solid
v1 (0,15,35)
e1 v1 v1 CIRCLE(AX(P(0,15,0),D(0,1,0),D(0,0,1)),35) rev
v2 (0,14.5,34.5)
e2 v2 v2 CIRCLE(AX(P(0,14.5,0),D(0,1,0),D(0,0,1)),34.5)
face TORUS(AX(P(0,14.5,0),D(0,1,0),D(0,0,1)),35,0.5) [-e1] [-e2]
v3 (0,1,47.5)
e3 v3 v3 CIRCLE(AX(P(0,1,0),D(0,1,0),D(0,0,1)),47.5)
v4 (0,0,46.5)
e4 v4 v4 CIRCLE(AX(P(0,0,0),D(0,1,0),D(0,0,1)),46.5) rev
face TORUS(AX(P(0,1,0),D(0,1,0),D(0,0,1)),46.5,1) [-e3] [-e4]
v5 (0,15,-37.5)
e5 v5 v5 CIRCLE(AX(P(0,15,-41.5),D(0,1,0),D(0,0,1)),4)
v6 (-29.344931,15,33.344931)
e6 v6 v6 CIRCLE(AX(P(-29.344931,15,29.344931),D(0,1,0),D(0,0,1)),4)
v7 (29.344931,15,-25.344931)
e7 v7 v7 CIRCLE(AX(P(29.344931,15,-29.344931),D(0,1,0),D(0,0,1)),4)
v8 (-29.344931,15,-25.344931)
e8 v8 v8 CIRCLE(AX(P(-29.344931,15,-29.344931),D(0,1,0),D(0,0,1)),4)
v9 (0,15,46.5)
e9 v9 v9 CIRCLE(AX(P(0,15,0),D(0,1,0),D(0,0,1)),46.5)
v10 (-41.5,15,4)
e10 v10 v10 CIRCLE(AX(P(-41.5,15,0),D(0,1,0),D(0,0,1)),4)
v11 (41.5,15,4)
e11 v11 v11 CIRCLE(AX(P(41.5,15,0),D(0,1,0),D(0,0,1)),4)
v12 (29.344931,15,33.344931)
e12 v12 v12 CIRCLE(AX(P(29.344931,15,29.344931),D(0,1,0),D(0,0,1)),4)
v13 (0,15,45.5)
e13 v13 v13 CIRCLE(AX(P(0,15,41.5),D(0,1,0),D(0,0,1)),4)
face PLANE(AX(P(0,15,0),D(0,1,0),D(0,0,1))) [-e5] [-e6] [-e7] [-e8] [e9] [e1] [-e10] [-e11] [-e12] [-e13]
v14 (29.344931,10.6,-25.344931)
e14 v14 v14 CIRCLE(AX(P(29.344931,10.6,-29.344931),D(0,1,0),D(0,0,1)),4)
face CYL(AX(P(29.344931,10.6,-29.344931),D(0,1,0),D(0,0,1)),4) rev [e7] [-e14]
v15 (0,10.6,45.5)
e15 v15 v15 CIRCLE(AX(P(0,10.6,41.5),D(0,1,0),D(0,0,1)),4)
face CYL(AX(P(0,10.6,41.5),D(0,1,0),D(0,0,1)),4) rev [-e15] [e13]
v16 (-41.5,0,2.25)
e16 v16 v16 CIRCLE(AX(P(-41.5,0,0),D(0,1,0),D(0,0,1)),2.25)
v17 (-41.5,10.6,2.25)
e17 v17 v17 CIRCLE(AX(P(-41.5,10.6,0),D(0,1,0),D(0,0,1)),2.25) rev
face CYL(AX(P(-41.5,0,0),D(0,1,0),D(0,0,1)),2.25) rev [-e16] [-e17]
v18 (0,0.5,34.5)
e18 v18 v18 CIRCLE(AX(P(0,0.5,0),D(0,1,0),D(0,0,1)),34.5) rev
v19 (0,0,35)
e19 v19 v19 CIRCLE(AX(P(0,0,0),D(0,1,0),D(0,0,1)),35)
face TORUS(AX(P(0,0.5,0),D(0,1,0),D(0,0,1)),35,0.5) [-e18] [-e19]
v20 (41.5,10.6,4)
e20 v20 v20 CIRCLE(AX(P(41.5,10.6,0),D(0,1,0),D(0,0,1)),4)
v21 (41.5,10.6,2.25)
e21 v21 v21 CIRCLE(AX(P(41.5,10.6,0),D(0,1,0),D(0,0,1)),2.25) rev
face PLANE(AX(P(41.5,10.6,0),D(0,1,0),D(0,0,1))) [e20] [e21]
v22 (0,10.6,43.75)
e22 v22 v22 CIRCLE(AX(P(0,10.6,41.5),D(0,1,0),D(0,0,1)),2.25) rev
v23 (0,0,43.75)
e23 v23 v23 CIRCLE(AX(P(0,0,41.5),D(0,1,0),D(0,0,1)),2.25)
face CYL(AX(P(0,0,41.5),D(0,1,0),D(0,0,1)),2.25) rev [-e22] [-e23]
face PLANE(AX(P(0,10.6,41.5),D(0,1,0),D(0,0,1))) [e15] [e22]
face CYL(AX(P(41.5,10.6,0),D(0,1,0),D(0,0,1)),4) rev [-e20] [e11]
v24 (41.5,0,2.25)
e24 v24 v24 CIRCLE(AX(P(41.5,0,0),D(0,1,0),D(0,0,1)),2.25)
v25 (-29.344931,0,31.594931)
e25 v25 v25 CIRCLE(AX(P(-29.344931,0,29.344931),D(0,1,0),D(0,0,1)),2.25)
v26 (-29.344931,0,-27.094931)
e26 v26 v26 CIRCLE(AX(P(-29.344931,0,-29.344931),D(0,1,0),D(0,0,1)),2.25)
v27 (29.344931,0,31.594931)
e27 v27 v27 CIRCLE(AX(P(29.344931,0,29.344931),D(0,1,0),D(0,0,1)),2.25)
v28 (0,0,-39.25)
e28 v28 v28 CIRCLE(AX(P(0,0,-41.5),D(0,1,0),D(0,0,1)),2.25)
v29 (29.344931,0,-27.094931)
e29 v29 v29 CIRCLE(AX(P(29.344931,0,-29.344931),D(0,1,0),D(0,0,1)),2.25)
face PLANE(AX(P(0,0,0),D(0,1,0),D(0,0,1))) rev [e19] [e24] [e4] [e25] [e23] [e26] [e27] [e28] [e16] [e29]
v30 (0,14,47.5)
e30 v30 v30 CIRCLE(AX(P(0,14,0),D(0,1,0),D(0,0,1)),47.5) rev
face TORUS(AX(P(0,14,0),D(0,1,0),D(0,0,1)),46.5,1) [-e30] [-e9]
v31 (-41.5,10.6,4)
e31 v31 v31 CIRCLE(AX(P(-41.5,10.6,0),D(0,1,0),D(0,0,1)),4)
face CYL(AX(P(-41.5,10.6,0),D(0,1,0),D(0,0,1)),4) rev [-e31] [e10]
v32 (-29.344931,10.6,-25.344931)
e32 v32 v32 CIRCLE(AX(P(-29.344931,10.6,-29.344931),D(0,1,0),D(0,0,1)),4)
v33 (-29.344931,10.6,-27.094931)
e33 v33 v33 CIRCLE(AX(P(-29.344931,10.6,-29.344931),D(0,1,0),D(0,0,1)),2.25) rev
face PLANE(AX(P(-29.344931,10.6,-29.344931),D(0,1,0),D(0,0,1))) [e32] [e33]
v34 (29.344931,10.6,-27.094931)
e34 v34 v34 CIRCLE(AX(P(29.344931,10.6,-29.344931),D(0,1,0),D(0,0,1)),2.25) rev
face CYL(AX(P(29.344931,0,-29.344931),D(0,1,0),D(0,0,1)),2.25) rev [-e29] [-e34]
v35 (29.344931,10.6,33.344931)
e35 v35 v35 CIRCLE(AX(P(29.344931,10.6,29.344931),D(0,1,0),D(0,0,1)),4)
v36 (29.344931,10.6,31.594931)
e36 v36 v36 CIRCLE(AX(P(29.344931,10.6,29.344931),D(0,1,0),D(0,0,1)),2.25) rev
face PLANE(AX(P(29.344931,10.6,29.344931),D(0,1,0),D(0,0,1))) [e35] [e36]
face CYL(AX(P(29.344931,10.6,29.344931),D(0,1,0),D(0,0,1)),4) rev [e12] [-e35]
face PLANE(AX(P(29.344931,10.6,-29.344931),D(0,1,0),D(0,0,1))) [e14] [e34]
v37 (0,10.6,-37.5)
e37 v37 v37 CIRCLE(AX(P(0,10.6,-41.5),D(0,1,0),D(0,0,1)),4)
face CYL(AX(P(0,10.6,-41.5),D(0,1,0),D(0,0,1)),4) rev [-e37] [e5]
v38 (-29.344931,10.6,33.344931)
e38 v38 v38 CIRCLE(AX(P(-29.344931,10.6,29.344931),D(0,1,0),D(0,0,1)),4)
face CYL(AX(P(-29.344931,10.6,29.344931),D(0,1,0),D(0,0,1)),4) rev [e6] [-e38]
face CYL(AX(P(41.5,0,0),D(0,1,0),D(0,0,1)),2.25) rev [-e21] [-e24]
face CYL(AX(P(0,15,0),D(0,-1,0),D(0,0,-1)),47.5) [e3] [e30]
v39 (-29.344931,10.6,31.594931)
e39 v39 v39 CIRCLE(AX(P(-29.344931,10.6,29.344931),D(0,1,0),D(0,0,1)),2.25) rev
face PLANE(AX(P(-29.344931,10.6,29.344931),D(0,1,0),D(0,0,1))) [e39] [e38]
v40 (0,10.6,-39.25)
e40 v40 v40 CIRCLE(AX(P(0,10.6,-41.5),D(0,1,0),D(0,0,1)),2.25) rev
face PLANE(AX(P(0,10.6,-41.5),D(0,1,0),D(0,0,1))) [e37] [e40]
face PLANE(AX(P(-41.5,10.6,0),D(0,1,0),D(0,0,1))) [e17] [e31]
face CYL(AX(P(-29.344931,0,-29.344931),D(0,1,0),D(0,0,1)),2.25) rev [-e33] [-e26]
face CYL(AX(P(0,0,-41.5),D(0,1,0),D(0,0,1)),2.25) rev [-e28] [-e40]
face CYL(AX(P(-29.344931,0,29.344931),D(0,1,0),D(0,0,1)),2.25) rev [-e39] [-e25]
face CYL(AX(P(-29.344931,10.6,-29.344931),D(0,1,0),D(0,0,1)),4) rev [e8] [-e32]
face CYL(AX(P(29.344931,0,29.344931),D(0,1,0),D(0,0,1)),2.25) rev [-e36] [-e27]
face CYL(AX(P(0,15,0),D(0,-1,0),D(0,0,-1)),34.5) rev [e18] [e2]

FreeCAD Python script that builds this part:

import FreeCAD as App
import Part
import Sketcher

V = App.Vector
Q = App.Units.Quantity


def edges_at(feature, points):
    """Names of the edges that pass closest to the given points."""
    edges = feature.Shape.Edges
    near = lambda p: min(range(len(edges)), key=lambda i: edges[i].distToShape(Part.Vertex(*p))[0])
    return sorted({f"Edge{near(p) + 1}" for p in points})

doc = App.newDocument("Part")
body = doc.addObject("PartDesign::Body", "Body")

# Sketch on XZ plane
sketch1 = body.newObject("Sketcher::SketchObject", "Sketch")
sketch1.AttachmentSupport = (doc.getObject("XZ_Plane"), [""])
sketch1.MapMode = "FlatFace"
sketch1.addGeometry([
    Part.Circle(V(0, 0, 0), V(0, 0, 1), 48),
    Part.Circle(V(0, 0, 0), V(0, 0, 1), 34),
], False)
sketch1.addConstraint([
    Sketcher.Constraint("Coincident", 0, 3, -1, 1),
    Sketcher.Constraint("Coincident", 1, 3, -1, 1),
    Sketcher.Constraint("Diameter", 0, Q("95 mm")),
    Sketcher.Constraint("Diameter", 1, Q("69 mm")),
])
pad1 = body.newObject("PartDesign::Pad", "Pad")
pad1.Profile = sketch1
pad1.Length = 15
pad1.Reversed = True

# Sketch on XZ plane
sketch2 = body.newObject("Sketcher::SketchObject", "Sketch001")
sketch2.AttachmentSupport = (doc.getObject("XZ_Plane"), [""])
sketch2.MapMode = "FlatFace"
sketch2.AttachmentOffset = App.Placement(V(0, 0, -15), App.Rotation())
sketch2.addGeometry([
    Part.Circle(V(0, -41.5, 0), V(0, 0, 1), 2.2),  # 0
    Part.Circle(V(29.3, -29.3, 0), V(0, 0, 1), 2.2),  # 1
    Part.Circle(V(41.5, 0, 0), V(0, 0, 1), 2.2),  # 2
    Part.Circle(V(29.3, 29.3, 0), V(0, 0, 1), 2.2),  # 3
    Part.Circle(V(0, 41.5, 0), V(0, 0, 1), 2.2),  # 4
    Part.Circle(V(-29.3, 29.3, 0), V(0, 0, 1), 2.2),  # 5
    Part.Circle(V(-41.5, 0, 0), V(0, 0, 1), 2.2),  # 6
    Part.Circle(V(-29.3, -29.3, 0), V(0, 0, 1), 2.2),  # 7
], False)
sketch2.addConstraint([
    Sketcher.Constraint("Equal", 0, 1),
    Sketcher.Constraint("Equal", 1, 2),
    Sketcher.Constraint("Equal", 2, 3),
    Sketcher.Constraint("Equal", 3, 4),
    Sketcher.Constraint("Equal", 4, 5),
    Sketcher.Constraint("Equal", 5, 6),
    Sketcher.Constraint("Equal", 6, 7),
    Sketcher.Constraint("Symmetric", 0, 3, 4, 3, -1, 1),
    Sketcher.Constraint("Symmetric", 1, 3, 5, 3, -1, 1),
    Sketcher.Constraint("Symmetric", 2, 3, 6, 3, -1, 1),
    Sketcher.Constraint("Symmetric", 3, 3, 7, 3, -1, 1),
    Sketcher.Constraint("Symmetric", 3, 3, 5, 3, -2),
    Sketcher.Constraint("PointOnObject", 0, 3, -2),
    Sketcher.Constraint("PointOnObject", 2, 3, -1),
    Sketcher.Constraint("Diameter", 0, Q("4.5 mm")),
    Sketcher.Constraint("DistanceY", 0, 3, 4, 3, Q("83 mm")),
    Sketcher.Constraint("DistanceX", -1, 1, 2, 3, Q("41.5 mm")),
    Sketcher.Constraint("DistanceX", -1, 1, 1, 3, Q("29.344931 mm")),
    Sketcher.Constraint("DistanceY", 1, 3, -1, 1, Q("29.344931 mm")),
])
pocket1 = body.newObject("PartDesign::Pocket", "Pocket")
pocket1.Profile = sketch2
pocket1.Type = "ThroughAll"
pocket1.Reversed = True

# Sketch on XZ plane
sketch3 = body.newObject("Sketcher::SketchObject", "Sketch002")
sketch3.AttachmentSupport = (doc.getObject("XZ_Plane"), [""])
sketch3.MapMode = "FlatFace"
sketch3.AttachmentOffset = App.Placement(V(0, 0, -15), App.Rotation())
sketch3.addGeometry([
    Part.Circle(V(0, -41.5, 0), V(0, 0, 1), 4),  # 0
    Part.Circle(V(29.3, -29.3, 0), V(0, 0, 1), 4),  # 1
    Part.Circle(V(41.5, 0, 0), V(0, 0, 1), 4),  # 2
    Part.Circle(V(29.3, 29.3, 0), V(0, 0, 1), 4),  # 3
    Part.Circle(V(0, 41.5, 0), V(0, 0, 1), 4),  # 4
    Part.Circle(V(-29.3, 29.3, 0), V(0, 0, 1), 4),  # 5
    Part.Circle(V(-41.5, 0, 0), V(0, 0, 1), 4),  # 6
    Part.Circle(V(-29.3, -29.3, 0), V(0, 0, 1), 4),  # 7
], False)
sketch3.addConstraint([
    Sketcher.Constraint("Equal", 0, 1),
    Sketcher.Constraint("Equal", 1, 2),
    Sketcher.Constraint("Equal", 2, 3),
    Sketcher.Constraint("Equal", 3, 4),
    Sketcher.Constraint("Equal", 4, 5),
    Sketcher.Constraint("Equal", 5, 6),
    Sketcher.Constraint("Equal", 6, 7),
    Sketcher.Constraint("Symmetric", 0, 3, 4, 3, -1, 1),
    Sketcher.Constraint("Symmetric", 1, 3, 5, 3, -1, 1),
    Sketcher.Constraint("Symmetric", 2, 3, 6, 3, -1, 1),
    Sketcher.Constraint("Symmetric", 3, 3, 7, 3, -1, 1),
    Sketcher.Constraint("Symmetric", 3, 3, 5, 3, -2),
    Sketcher.Constraint("PointOnObject", 0, 3, -2),
    Sketcher.Constraint("PointOnObject", 2, 3, -1),
    Sketcher.Constraint("Diameter", 0, Q("8 mm")),
    Sketcher.Constraint("DistanceY", 0, 3, 4, 3, Q("83 mm")),
    Sketcher.Constraint("DistanceX", -1, 1, 2, 3, Q("41.5 mm")),
    Sketcher.Constraint("DistanceX", -1, 1, 1, 3, Q("29.344931 mm")),
    Sketcher.Constraint("DistanceY", 1, 3, -1, 1, Q("29.344931 mm")),
])
pocket2 = body.newObject("PartDesign::Pocket", "Pocket001")
pocket2.Profile = sketch3
pocket2.Length = 4.4
pocket2.Reversed = True
doc.recompute()

fillet = body.newObject("PartDesign::Fillet", "Fillet")
fillet.Base = (pocket2, edges_at(pocket2, [(0, 0, -47.5), (0, 15, -47.5)]))
fillet.Radius = 1
doc.recompute()

fillet2 = body.newObject("PartDesign::Fillet", "Fillet001")
fillet2.Base = (fillet, edges_at(fillet, [(0, 0, -34.5), (0, 15, -34.5)]))
fillet2.Radius = 0.5

doc.recompute()
